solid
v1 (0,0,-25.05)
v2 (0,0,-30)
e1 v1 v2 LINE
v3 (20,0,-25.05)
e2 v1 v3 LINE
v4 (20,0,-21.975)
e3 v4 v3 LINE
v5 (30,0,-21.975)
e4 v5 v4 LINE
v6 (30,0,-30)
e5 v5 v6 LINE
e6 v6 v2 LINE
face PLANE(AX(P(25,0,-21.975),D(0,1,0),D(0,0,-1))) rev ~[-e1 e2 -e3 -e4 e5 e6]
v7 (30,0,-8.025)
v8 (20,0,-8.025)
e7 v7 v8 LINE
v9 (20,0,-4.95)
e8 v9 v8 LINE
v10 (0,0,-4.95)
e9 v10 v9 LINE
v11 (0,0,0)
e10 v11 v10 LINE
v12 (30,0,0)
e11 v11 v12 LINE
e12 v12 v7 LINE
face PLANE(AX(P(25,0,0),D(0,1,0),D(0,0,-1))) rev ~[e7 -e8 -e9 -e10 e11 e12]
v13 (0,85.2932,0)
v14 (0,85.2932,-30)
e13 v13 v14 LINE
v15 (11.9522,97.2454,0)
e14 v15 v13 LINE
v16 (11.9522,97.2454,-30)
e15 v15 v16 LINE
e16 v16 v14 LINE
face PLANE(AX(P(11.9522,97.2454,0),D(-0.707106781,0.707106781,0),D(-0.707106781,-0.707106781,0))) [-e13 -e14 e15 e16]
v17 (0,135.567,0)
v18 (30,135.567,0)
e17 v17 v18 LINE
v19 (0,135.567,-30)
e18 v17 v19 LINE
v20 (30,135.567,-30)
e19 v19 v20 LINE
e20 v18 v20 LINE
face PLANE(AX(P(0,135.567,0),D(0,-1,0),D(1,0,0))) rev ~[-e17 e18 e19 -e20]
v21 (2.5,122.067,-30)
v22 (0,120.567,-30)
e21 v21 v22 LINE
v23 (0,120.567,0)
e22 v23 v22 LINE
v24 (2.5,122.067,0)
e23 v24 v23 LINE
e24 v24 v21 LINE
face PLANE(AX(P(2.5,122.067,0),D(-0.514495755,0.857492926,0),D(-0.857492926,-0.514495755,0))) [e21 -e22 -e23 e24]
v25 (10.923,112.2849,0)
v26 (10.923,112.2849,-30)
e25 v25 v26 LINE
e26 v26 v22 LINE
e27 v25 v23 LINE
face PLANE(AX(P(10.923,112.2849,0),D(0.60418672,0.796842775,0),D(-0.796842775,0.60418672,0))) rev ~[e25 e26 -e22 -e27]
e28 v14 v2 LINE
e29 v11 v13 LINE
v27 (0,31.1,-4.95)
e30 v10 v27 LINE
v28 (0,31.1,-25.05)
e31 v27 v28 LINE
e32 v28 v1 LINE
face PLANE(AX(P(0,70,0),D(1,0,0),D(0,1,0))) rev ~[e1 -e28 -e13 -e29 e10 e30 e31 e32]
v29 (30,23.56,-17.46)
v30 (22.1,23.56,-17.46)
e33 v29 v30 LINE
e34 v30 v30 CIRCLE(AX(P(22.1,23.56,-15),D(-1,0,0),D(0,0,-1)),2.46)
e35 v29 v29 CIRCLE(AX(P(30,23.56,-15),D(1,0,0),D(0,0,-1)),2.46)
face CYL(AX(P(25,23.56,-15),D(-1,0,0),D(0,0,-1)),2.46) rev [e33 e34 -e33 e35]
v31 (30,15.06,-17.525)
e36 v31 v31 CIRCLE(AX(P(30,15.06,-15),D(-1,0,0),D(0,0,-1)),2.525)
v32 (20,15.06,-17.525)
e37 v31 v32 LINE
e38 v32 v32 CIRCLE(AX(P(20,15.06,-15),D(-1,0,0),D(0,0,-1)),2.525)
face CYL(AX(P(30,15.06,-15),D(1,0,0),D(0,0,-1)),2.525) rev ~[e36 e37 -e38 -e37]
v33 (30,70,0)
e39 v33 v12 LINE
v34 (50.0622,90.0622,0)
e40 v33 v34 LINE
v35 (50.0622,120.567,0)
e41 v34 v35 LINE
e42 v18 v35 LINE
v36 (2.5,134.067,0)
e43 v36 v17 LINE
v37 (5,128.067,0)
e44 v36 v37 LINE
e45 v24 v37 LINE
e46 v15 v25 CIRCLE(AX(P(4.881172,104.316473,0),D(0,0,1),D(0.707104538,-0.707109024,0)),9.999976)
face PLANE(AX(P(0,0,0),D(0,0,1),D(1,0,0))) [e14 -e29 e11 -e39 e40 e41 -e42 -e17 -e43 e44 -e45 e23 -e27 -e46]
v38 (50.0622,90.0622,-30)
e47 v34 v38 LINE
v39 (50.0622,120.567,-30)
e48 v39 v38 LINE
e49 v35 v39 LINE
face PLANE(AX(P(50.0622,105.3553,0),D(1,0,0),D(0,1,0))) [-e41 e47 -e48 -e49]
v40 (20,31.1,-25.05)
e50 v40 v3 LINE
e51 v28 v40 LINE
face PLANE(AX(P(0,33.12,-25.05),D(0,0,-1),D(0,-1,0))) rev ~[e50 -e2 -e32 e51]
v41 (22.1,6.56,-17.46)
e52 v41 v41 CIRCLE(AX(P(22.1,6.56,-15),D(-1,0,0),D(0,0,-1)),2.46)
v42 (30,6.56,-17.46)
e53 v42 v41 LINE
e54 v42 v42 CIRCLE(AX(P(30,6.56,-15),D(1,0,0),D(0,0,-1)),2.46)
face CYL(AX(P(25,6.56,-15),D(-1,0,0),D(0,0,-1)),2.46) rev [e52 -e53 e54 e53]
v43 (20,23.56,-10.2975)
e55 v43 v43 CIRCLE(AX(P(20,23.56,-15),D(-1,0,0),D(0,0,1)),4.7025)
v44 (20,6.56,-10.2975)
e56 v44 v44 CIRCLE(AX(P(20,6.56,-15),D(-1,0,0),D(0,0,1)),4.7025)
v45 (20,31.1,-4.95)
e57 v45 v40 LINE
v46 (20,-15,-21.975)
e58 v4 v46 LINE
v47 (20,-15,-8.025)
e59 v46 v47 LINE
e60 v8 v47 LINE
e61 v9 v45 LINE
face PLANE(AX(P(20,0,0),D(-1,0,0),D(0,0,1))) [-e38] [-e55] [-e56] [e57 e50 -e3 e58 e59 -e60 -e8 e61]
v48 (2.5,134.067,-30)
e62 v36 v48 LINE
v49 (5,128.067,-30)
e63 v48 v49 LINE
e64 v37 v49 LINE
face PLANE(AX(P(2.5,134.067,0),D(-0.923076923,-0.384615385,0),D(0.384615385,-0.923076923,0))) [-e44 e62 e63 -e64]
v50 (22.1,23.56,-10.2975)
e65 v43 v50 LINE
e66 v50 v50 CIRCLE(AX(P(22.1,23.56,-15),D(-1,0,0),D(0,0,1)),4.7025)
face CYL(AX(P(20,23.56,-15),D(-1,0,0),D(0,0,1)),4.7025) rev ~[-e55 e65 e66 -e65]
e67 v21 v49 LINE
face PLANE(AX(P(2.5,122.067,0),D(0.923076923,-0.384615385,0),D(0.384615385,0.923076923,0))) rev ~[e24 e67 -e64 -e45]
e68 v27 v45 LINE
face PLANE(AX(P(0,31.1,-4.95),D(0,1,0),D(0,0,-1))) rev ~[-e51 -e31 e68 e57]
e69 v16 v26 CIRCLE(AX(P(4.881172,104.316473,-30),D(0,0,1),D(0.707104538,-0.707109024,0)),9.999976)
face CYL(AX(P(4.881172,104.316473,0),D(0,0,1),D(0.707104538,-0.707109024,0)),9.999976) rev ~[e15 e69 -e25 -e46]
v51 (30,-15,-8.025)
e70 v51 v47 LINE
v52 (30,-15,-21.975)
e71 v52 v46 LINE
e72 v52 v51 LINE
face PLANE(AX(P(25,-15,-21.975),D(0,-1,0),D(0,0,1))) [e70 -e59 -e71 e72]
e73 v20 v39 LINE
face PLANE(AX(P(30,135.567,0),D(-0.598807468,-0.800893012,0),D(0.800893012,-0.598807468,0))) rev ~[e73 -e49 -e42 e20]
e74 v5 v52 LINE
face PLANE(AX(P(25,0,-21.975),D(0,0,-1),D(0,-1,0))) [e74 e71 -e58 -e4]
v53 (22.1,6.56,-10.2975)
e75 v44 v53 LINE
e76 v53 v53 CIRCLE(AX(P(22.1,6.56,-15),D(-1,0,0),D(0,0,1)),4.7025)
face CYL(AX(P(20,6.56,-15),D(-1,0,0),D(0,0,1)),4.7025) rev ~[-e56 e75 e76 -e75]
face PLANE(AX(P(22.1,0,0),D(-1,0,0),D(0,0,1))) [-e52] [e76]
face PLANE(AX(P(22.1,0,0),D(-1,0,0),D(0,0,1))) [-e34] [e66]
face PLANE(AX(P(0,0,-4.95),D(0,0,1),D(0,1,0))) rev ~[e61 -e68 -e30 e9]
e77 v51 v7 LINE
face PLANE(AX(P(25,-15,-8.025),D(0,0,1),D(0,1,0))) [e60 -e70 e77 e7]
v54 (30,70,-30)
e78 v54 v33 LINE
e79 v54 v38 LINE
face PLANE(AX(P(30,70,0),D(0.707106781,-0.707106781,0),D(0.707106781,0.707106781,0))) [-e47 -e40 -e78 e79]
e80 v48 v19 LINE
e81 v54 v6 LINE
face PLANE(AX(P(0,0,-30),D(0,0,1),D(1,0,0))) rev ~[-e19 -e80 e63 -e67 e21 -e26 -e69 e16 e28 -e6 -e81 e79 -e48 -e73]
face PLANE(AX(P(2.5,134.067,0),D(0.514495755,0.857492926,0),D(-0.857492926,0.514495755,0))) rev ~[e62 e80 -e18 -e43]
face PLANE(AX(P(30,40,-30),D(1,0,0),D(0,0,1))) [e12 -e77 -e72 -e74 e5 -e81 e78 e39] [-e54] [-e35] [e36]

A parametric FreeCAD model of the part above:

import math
import FreeCAD as App
import Part
import Sketcher

V = App.Vector
Q = App.Units.Quantity

doc = App.newDocument("Part")
body = doc.addObject("PartDesign::Body", "Body")

sketch1 = body.newObject("Sketcher::SketchObject", "Sketch")
sketch1.AttachmentSupport = (doc.getObject("XY_Plane"), [""])
sketch1.MapMode = "FlatFace"
sketch1.addGeometry(Part.LineSegment(V(0, 40, 0), V(0, 0, 0)), False)
sketch1.addGeometry(Part.LineSegment(V(0, 0, 0), V(25, 0, 0)), False)
sketch1.addGeometry(Part.LineSegment(V(25, 0, 0), V(25, 40, 0)), False)
sketch1.addGeometry(Part.LineSegment(V(25, 40, 0), V(0, 40, 0)), False)
sketch1.addConstraint(Sketcher.Constraint("Coincident", 0, 2, 1, 1))
sketch1.addConstraint(Sketcher.Constraint("Coincident", 1, 2, 2, 1))
sketch1.addConstraint(Sketcher.Constraint("Coincident", 2, 2, 3, 1))
sketch1.addConstraint(Sketcher.Constraint("Coincident", 3, 2, 0, 1))
sketch1.addConstraint(Sketcher.Constraint("Vertical", 0))
sketch1.addConstraint(Sketcher.Constraint("Horizontal", 1))
sketch1.addConstraint(Sketcher.Constraint("Vertical", 2))
sketch1.addConstraint(Sketcher.Constraint("Horizontal", 3))
sketch1.addConstraint(Sketcher.Constraint("Coincident", 0, 2, -1, 1))
sketch1.addConstraint(Sketcher.Constraint("DistanceX", 1, 1, 1, 2, Q("25 mm")))
sketch1.addConstraint(Sketcher.Constraint("DistanceY", 0, 2, 0, 1, Q("40 mm")))
pad1 = body.newObject("PartDesign::Pad", "Pad")
pad1.Profile = sketch1
pad1.Length = 30
pad1.Reversed = True

sketch2 = body.newObject("Sketcher::SketchObject", "Sketch001")
sketch2.AttachmentSupport = (doc.getObject("YZ_Plane"), [""])
sketch2.MapMode = "FlatFace"
sketch2.AttachmentOffset = App.Placement(V(0, 0, 25), App.Rotation())
sketch2.addGeometry(Part.Circle(V(6.56, -15, 0), V(0, 0, 1), 2.46), False)
sketch2.addConstraint(Sketcher.Constraint("Diameter", 0, Q("4.92 mm")))
sketch2.addConstraint(Sketcher.Constraint("DistanceY", 0, 3, -1, 1, Q("15 mm")))
sketch2.addConstraint(Sketcher.Constraint("DistanceX", -1, 1, 0, 3, Q("6.56 mm")))
pocket1 = body.newObject("PartDesign::Pocket", "Pocket")
pocket1.Profile = sketch2
pocket1.Length = 30

sketch3 = body.newObject("Sketcher::SketchObject", "Sketch002")
sketch3.AttachmentSupport = (doc.getObject("YZ_Plane"), [""])
sketch3.MapMode = "FlatFace"
sketch3.addGeometry(Part.LineSegment(V(0, -25.05, 0), V(0, -4.95, 0)), False)
sketch3.addGeometry(Part.LineSegment(V(0, -4.95, 0), V(33.12, -4.95, 0)), False)
sketch3.addGeometry(Part.LineSegment(V(33.12, -4.95, 0), V(33.12, -25.05, 0)), False)
sketch3.addGeometry(Part.LineSegment(V(33.12, -25.05, 0), V(0, -25.05, 0)), False)
sketch3.addConstraint(Sketcher.Constraint("Coincident", 0, 2, 1, 1))
sketch3.addConstraint(Sketcher.Constraint("Coincident", 1, 2, 2, 1))
sketch3.addConstraint(Sketcher.Constraint("Coincident", 2, 2, 3, 1))
sketch3.addConstraint(Sketcher.Constraint("Coincident", 3, 2, 0, 1))
sketch3.addConstraint(Sketcher.Constraint("Vertical", 0))
sketch3.addConstraint(Sketcher.Constraint("Horizontal", 1))
sketch3.addConstraint(Sketcher.Constraint("Vertical", 2))
sketch3.addConstraint(Sketcher.Constraint("Horizontal", 3))
sketch3.addConstraint(Sketcher.Constraint("PointOnObject", 0, 2, -2))
sketch3.addConstraint(Sketcher.Constraint("DistanceY", 0, 1, 0, 2, Q("20.1 mm")))
sketch3.addConstraint(Sketcher.Constraint("DistanceX", 1, 1, 1, 2, Q("33.12 mm")))
sketch3.addConstraint(Sketcher.Constraint("DistanceY", 0, 2, -1, 1, Q("4.95 mm")))
pocket2 = body.newObject("PartDesign::Pocket", "Pocket001")
pocket2.Profile = sketch3
pocket2.Length = 20
pocket2.Reversed = True

sketch4 = body.newObject("Sketcher::SketchObject", "Sketch003")
sketch4.AttachmentSupport = (doc.getObject("XZ_Plane"), [""])
sketch4.MapMode = "FlatFace"
sketch4.addGeometry(Part.LineSegment(V(25, -8.025, 0), V(20, -8.025, 0)), False)
sketch4.addGeometry(Part.LineSegment(V(20, -8.025, 0), V(20, -21.975, 0)), False)
sketch4.addGeometry(Part.LineSegment(V(20, -21.975, 0), V(25, -21.975, 0)), False)
sketch4.addGeometry(Part.LineSegment(V(25, -21.975, 0), V(25, -8.025, 0)), False)
sketch4.addConstraint(Sketcher.Constraint("Coincident", 0, 2, 1, 1))
sketch4.addConstraint(Sketcher.Constraint("Coincident", 1, 2, 2, 1))
sketch4.addConstraint(Sketcher.Constraint("Coincident", 2, 2, 3, 1))
sketch4.addConstraint(Sketcher.Constraint("Coincident", 3, 2, 0, 1))
sketch4.addConstraint(Sketcher.Constraint("Horizontal", 0))
sketch4.addConstraint(Sketcher.Constraint("Vertical", 1))
sketch4.addConstraint(Sketcher.Constraint("Horizontal", 2))
sketch4.addConstraint(Sketcher.Constraint("Vertical", 3))
sketch4.addConstraint(Sketcher.Constraint("DistanceY", 1, 2, 1, 1, Q("13.95 mm")))
sketch4.addConstraint(Sketcher.Constraint("DistanceX", 0, 2, 0, 1, Q("5 mm")))
sketch4.addConstraint(Sketcher.Constraint("DistanceX", -1, 1, 0, 2, Q("20 mm")))
sketch4.addConstraint(Sketcher.Constraint("DistanceY", 0, 2, -1, 1, Q("8.025 mm")))
pad2 = body.newObject("PartDesign::Pad", "Pad001")
pad2.Profile = sketch4
pad2.Length = 15

sketch5 = body.newObject("Sketcher::SketchObject", "Sketch004")
sketch5.AttachmentSupport = (doc.getObject("YZ_Plane"), [""])
sketch5.MapMode = "FlatFace"
sketch5.AttachmentOffset = App.Placement(V(0, 0, 20), App.Rotation())
sketch5.addGeometry(Part.Circle(V(6.56, -15, 0), V(0, 0, 1), 4.7025), False)
sketch5.addGeometry(Part.Circle(V(6.56, -15, 0), V(0, 0, 1), 2.46), False)
sketch5.addConstraint(Sketcher.Constraint("Coincident", 1, 3, 0, 3))
sketch5.addConstraint(Sketcher.Constraint("Diameter", 0, Q("9.405 mm")))
sketch5.addConstraint(Sketcher.Constraint("Diameter", 1, Q("4.92 mm")))
sketch5.addConstraint(Sketcher.Constraint("DistanceY", 0, 3, -1, 1, Q("15 mm")))
sketch5.addConstraint(Sketcher.Constraint("DistanceX", -1, 1, 0, 3, Q("6.56 mm")))
pocket3 = body.newObject("PartDesign::Pocket", "Pocket002")
pocket3.Profile = sketch5
pocket3.Length = 2.1
pocket3.Reversed = True

sketch6 = body.newObject("Sketcher::SketchObject", "Sketch005")
sketch6.AttachmentSupport = (doc.getObject("YZ_Plane"), [""])
sketch6.MapMode = "FlatFace"
sketch6.AttachmentOffset = App.Placement(V(0, 0, 25), App.Rotation())
sketch6.addGeometry(Part.Circle(V(23.56, -15, 0), V(0, 0, 1), 2.46), False)
sketch6.addConstraint(Sketcher.Constraint("Diameter", 0, Q("4.92 mm")))
sketch6.addConstraint(Sketcher.Constraint("DistanceY", 0, 3, -1, 1, Q("15 mm")))
sketch6.addConstraint(Sketcher.Constraint("DistanceX", -1, 1, 0, 3, Q("23.56 mm")))
pocket4 = body.newObject("PartDesign::Pocket", "Pocket003")
pocket4.Profile = sketch6
pocket4.Length = 10

sketch7 = body.newObject("Sketcher::SketchObject", "Sketch006")
sketch7.AttachmentSupport = (doc.getObject("YZ_Plane"), [""])
sketch7.MapMode = "FlatFace"
sketch7.AttachmentOffset = App.Placement(V(0, 0, 20), App.Rotation())
sketch7.addGeometry(Part.Circle(V(23.56, -15, 0), V(0, 0, 1), 4.7025), False)
sketch7.addGeometry(Part.Circle(V(23.56, -15, 0), V(0, 0, 1), 2.46), False)
sketch7.addConstraint(Sketcher.Constraint("Coincident", 1, 3, 0, 3))
sketch7.addConstraint(Sketcher.Constraint("Diameter", 0, Q("9.405 mm")))
sketch7.addConstraint(Sketcher.Constraint("Diameter", 1, Q("4.92 mm")))
sketch7.addConstraint(Sketcher.Constraint("DistanceY", 0, 3, -1, 1, Q("15 mm")))
sketch7.addConstraint(Sketcher.Constraint("DistanceX", -1, 1, 0, 3, Q("23.56 mm")))
pocket5 = body.newObject("PartDesign::Pocket", "Pocket004")
pocket5.Profile = sketch7
pocket5.Length = 2.1
pocket5.Reversed = True

sketch8 = body.newObject("Sketcher::SketchObject", "Sketch007")
sketch8.AttachmentSupport = (doc.getObject("YZ_Plane"), [""])
sketch8.MapMode = "FlatFace"
sketch8.AttachmentOffset = App.Placement(V(0, 0, 25), App.Rotation())
sketch8.addGeometry(Part.LineSegment(V(0, -30, 0), V(40, -30, 0)), False)
sketch8.addGeometry(Part.LineSegment(V(40, -30, 0), V(40, 0, 0)), False)
sketch8.addGeometry(Part.LineSegment(V(40, 0, 0), V(0, 0, 0)), False)
sketch8.addGeometry(Part.LineSegment(V(0, 0, 0), V(0, -8.025, 0)), False)
sketch8.addGeometry(Part.LineSegment(V(0, -8.025, 0), V(-15, -8.025, 0)), False)
sketch8.addGeometry(Part.LineSegment(V(-15, -8.025, 0), V(-15, -21.975, 0)), False)
sketch8.addGeometry(Part.LineSegment(V(-15, -21.975, 0), V(0, -21.975, 0)), False)
sketch8.addGeometry(Part.LineSegment(V(0, -21.975, 0), V(0, -30, 0)), False)
sketch8.addGeometry(Part.Circle(V(6.56, -15, 0), V(0, 0, 1), 2.46), False)
sketch8.addGeometry(Part.Circle(V(23.56, -15, 0), V(0, 0, 1), 2.46), False)
sketch8.addConstraint(Sketcher.Constraint("Coincident", 0, 2, 1, 1))
sketch8.addConstraint(Sketcher.Constraint("Coincident", 1, 2, 2, 1))
sketch8.addConstraint(Sketcher.Constraint("Coincident", 2, 2, 3, 1))
sketch8.addConstraint(Sketcher.Constraint("Coincident", 3, 2, 4, 1))
sketch8.addConstraint(Sketcher.Constraint("Coincident", 4, 2, 5, 1))
sketch8.addConstraint(Sketcher.Constraint("Coincident", 5, 2, 6, 1))
sketch8.addConstraint(Sketcher.Constraint("Coincident", 6, 2, 7, 1))
sketch8.addConstraint(Sketcher.Constraint("Coincident", 7, 2, 0, 1))
sketch8.addConstraint(Sketcher.Constraint("Horizontal", 0))
sketch8.addConstraint(Sketcher.Constraint("Vertical", 1))
sketch8.addConstraint(Sketcher.Constraint("Horizontal", 2))
sketch8.addConstraint(Sketcher.Constraint("Vertical", 3))
sketch8.addConstraint(Sketcher.Constraint("Horizontal", 4))
sketch8.addConstraint(Sketcher.Constraint("Vertical", 5))
sketch8.addConstraint(Sketcher.Constraint("Horizontal", 6))
sketch8.addConstraint(Sketcher.Constraint("Vertical", 7))
sketch8.addConstraint(Sketcher.Constraint("Coincident", 2, 2, -1, 1))
sketch8.addConstraint(Sketcher.Constraint("Equal", 8, 9))
sketch8.addConstraint(Sketcher.Constraint("PointOnObject", 6, 2, -2))
sketch8.addConstraint(Sketcher.Constraint("Horizontal", 8, 3, 9, 3))
sketch8.addConstraint(Sketcher.Constraint("Equal", 3, 7))
sketch8.addConstraint(Sketcher.Constraint("Diameter", 8, Q("4.92 mm")))
sketch8.addConstraint(Sketcher.Constraint("DistanceX", 0, 1, 0, 2, Q("40 mm")))
sketch8.addConstraint(Sketcher.Constraint("DistanceX", 4, 2, 4, 1, Q("15 mm")))
sketch8.addConstraint(Sketcher.Constraint("DistanceY", 1, 1, 1, 2, Q("30 mm")))
sketch8.addConstraint(Sketcher.Constraint("DistanceY", 8, 3, -1, 1, Q("15 mm")))
sketch8.addConstraint(Sketcher.Constraint("DistanceX", 8, 3, 9, 3, Q("17 mm")))
sketch8.addConstraint(Sketcher.Constraint("DistanceY", 5, 2, 5, 1, Q("13.95 mm")))
sketch8.addConstraint(Sketcher.Constraint("DistanceX", -1, 1, 8, 3, Q("6.56 mm")))
pad3 = body.newObject("PartDesign::Pad", "Pad002")
pad3.Profile = sketch8
pad3.Length = 5

sketch9 = body.newObject("Sketcher::SketchObject", "Sketch008")
sketch9.AttachmentSupport = (doc.getObject("XZ_Plane"), [""])
sketch9.MapMode = "FlatFace"
sketch9.AttachmentOffset = App.Placement(V(0, 0, -40), App.Rotation())
sketch9.addGeometry(Part.LineSegment(V(30, -30, 0), V(0, -30, 0)), False)
sketch9.addGeometry(Part.LineSegment(V(0, -30, 0), V(0, 0, 0)), False)
sketch9.addGeometry(Part.LineSegment(V(0, 0, 0), V(30, 0, 0)), False)
sketch9.addGeometry(Part.LineSegment(V(30, 0, 0), V(30, -30, 0)), False)
sketch9.addConstraint(Sketcher.Constraint("Coincident", 0, 2, 1, 1))
sketch9.addConstraint(Sketcher.Constraint("Coincident", 1, 2, 2, 1))
sketch9.addConstraint(Sketcher.Constraint("Coincident", 2, 2, 3, 1))
sketch9.addConstraint(Sketcher.Constraint("Coincident", 3, 2, 0, 1))
sketch9.addConstraint(Sketcher.Constraint("Horizontal", 0))
sketch9.addConstraint(Sketcher.Constraint("Vertical", 1))
sketch9.addConstraint(Sketcher.Constraint("Horizontal", 2))
sketch9.addConstraint(Sketcher.Constraint("Vertical", 3))
sketch9.addConstraint(Sketcher.Constraint("Coincident", 1, 2, -1, 1))
sketch9.addConstraint(Sketcher.Constraint("Equal", 2, 1))
sketch9.addConstraint(Sketcher.Constraint("DistanceX", 0, 2, 0, 1, Q("30 mm")))
pad4 = body.newObject("PartDesign::Pad", "Pad003")
pad4.Profile = sketch9
pad4.Length = 30
pad4.Reversed = True

sketch10 = body.newObject("Sketcher::SketchObject", "Sketch009")
sketch10.AttachmentSupport = (doc.getObject("YZ_Plane"), [""])
sketch10.MapMode = "FlatFace"
sketch10.AttachmentOffset = App.Placement(V(0, 0, 30), App.Rotation())
sketch10.addGeometry(Part.Circle(V(15.06, -15, 0), V(0, 0, 1), 2.525), False)
sketch10.addConstraint(Sketcher.Constraint("Diameter", 0, Q("5.05 mm")))
sketch10.addConstraint(Sketcher.Constraint("DistanceY", 0, 3, -1, 1, Q("15 mm")))
sketch10.addConstraint(Sketcher.Constraint("DistanceX", -1, 1, 0, 3, Q("15.06 mm")))
pocket6 = body.newObject("PartDesign::Pocket", "Pocket005")
pocket6.Profile = sketch10
pocket6.Length = 30

sketch11 = body.newObject("Sketcher::SketchObject", "Sketch010")
sketch11.AttachmentSupport = (doc.getObject("YZ_Plane"), [""])
sketch11.MapMode = "FlatFace"
sketch11.addGeometry(Part.LineSegment(V(33.12, -4.95, 0), V(33.12, -25.05, 0)), False)
sketch11.addGeometry(Part.LineSegment(V(33.12, -25.05, 0), V(31.1, -25.05, 0)), False)
sketch11.addGeometry(Part.LineSegment(V(31.1, -25.05, 0), V(31.1, -4.95, 0)), False)
sketch11.addGeometry(Part.LineSegment(V(31.1, -4.95, 0), V(33.12, -4.95, 0)), False)
sketch11.addConstraint(Sketcher.Constraint("Coincident", 0, 2, 1, 1))
sketch11.addConstraint(Sketcher.Constraint("Coincident", 1, 2, 2, 1))
sketch11.addConstraint(Sketcher.Constraint("Coincident", 2, 2, 3, 1))
sketch11.addConstraint(Sketcher.Constraint("Coincident", 3, 2, 0, 1))
sketch11.addConstraint(Sketcher.Constraint("Vertical", 0))
sketch11.addConstraint(Sketcher.Constraint("Horizontal", 1))
sketch11.addConstraint(Sketcher.Constraint("Vertical", 2))
sketch11.addConstraint(Sketcher.Constraint("Horizontal", 3))
sketch11.addConstraint(Sketcher.Constraint("DistanceX", 1, 2, 1, 1, Q("2.02 mm")))
sketch11.addConstraint(Sketcher.Constraint("DistanceY", 0, 2, 0, 1, Q("20.1 mm")))
sketch11.addConstraint(Sketcher.Constraint("DistanceX", -1, 1, 1, 2, Q("31.1 mm")))
sketch11.addConstraint(Sketcher.Constraint("DistanceY", 0, 2, -1, 1, Q("25.05 mm")))
pad5 = body.newObject("PartDesign::Pad", "Pad004")
pad5.Profile = sketch11
pad5.Length = 20

sketch12 = body.newObject("Sketcher::SketchObject", "Sketch011")
sketch12.AttachmentSupport = (doc.getObject("XY_Plane"), [""])
sketch12.MapMode = "FlatFace"
sketch12.addGeometry(Part.LineSegment(V(0, 85.2932, 0), V(0, 70, 0)), False)
sketch12.addGeometry(Part.LineSegment(V(0, 70, 0), V(30, 70, 0)), False)
sketch12.addGeometry(Part.LineSegment(V(30, 70, 0), V(50.0622, 90.0622, 0)), False)
sketch12.addGeometry(Part.LineSegment(V(50.0622, 90.0622, 0), V(50.0622, 120.567, 0)), False)
sketch12.addGeometry(Part.LineSegment(V(50.0622, 120.567, 0), V(30, 135.567, 0)), False)
sketch12.addGeometry(Part.LineSegment(V(30, 135.567, 0), V(0, 135.567, 0)), False)
sketch12.addGeometry(Part.LineSegment(V(0, 135.567, 0), V(2.5, 134.067, 0)), False)
sketch12.addGeometry(Part.LineSegment(V(2.5, 134.067, 0), V(5, 128.067, 0)), False)
sketch12.addGeometry(Part.LineSegment(V(5, 128.067, 0), V(2.5, 122.067, 0)), False)
sketch12.addGeometry(Part.LineSegment(V(2.5, 122.067, 0), V(0, 120.567, 0)), False)
sketch12.addGeometry(Part.LineSegment(V(0, 120.567, 0), V(10.923, 112.2849, 0)), False)
sketch12.addGeometry(Part.ArcOfCircle(Part.Circle(V(4.8811, 104.3165, 0), V(0, 0, 1), 10.000046), math.radians(-45), math.radians(52.829413)), False)
sketch12.addGeometry(Part.LineSegment(V(11.9522, 97.2454, 0), V(0, 85.2932, 0)), False)
sketch12.addConstraint(Sketcher.Constraint("Coincident", 0, 2, 1, 1))
sketch12.addConstraint(Sketcher.Constraint("Coincident", 1, 2, 2, 1))
sketch12.addConstraint(Sketcher.Constraint("Coincident", 2, 2, 3, 1))
sketch12.addConstraint(Sketcher.Constraint("Coincident", 3, 2, 4, 1))
sketch12.addConstraint(Sketcher.Constraint("Coincident", 4, 2, 5, 1))
sketch12.addConstraint(Sketcher.Constraint("Coincident", 5, 2, 6, 1))
sketch12.addConstraint(Sketcher.Constraint("Coincident", 6, 2, 7, 1))
sketch12.addConstraint(Sketcher.Constraint("Coincident", 7, 2, 8, 1))
sketch12.addConstraint(Sketcher.Constraint("Coincident", 8, 2, 9, 1))
sketch12.addConstraint(Sketcher.Constraint("Coincident", 9, 2, 10, 1))
sketch12.addConstraint(Sketcher.Constraint("Tangent", 10, 2, 11, 2))
sketch12.addConstraint(Sketcher.Constraint("Tangent", 11, 1, 12, 1))
sketch12.addConstraint(Sketcher.Constraint("Coincident", 12, 2, 0, 1))
sketch12.addConstraint(Sketcher.Constraint("Vertical", 0))
sketch12.addConstraint(Sketcher.Constraint("Horizontal", 1))
sketch12.addConstraint(Sketcher.Constraint("Vertical", 3))
sketch12.addConstraint(Sketcher.Constraint("Horizontal", 5))
sketch12.addConstraint(Sketcher.Constraint("PointOnObject", 0, 2, -2))
sketch12.addConstraint(Sketcher.Constraint("PointOnObject", 5, 2, -2))
sketch12.addConstraint(Sketcher.Constraint("PointOnObject", 9, 2, -2))
sketch12.addConstraint(Sketcher.Constraint("Parallel", 2, 12))
sketch12.addConstraint(Sketcher.Constraint("Horizontal", 3, 2, 9, 2))
sketch12.addConstraint(Sketcher.Constraint("Vertical", 1, 2, 4, 2))
sketch12.addConstraint(Sketcher.Constraint("Vertical", 6, 2, 8, 2))
sketch12.addConstraint(Sketcher.Constraint("Equal", 7, 8))
sketch12.addConstraint(Sketcher.Constraint("Equal", 6, 9))
sketch12.addConstraint(Sketcher.Constraint("Radius", 11, Q("10 mm")))
sketch12.addConstraint(Sketcher.Constraint("DistanceX", 1, 1, 1, 2, Q("30 mm")))
sketch12.addConstraint(Sketcher.Constraint("Angle", 2, Q("45 deg")))
sketch12.addConstraint(Sketcher.Constraint("DistanceY", -1, 1, 0, 2, Q("70 mm")))
sketch12.addConstraint(Sketcher.Constraint("DistanceX", -1, 1, 7, 2, Q("5 mm")))
sketch12.addConstraint(Sketcher.Constraint("DistanceY", 3, 2, 4, 2, Q("15 mm")))
sketch12.addConstraint(Sketcher.Constraint("DistanceY", 7, 2, 6, 2, Q("6 mm")))
sketch12.addConstraint(Sketcher.Constraint("Distance", 7, Q("6.5 mm")))
sketch12.addConstraint(Sketcher.Constraint("Angle", 10, Q("-37.1703 deg")))
sketch12.addConstraint(Sketcher.Constraint("Distance", 12, Q("16.903 mm")))
sketch12.addConstraint(Sketcher.Constraint("DistanceY", 0, 2, 0, 1, Q("15.2932 mm")))
sketch12.addConstraint(Sketcher.Constraint("DistanceY", 3, 1, 3, 2, Q("30.5048 mm")))
pad6 = body.newObject("PartDesign::Pad", "Pad005")
pad6.Profile = sketch12
pad6.Length = 30
pad6.Reversed = True

doc.recompute()
